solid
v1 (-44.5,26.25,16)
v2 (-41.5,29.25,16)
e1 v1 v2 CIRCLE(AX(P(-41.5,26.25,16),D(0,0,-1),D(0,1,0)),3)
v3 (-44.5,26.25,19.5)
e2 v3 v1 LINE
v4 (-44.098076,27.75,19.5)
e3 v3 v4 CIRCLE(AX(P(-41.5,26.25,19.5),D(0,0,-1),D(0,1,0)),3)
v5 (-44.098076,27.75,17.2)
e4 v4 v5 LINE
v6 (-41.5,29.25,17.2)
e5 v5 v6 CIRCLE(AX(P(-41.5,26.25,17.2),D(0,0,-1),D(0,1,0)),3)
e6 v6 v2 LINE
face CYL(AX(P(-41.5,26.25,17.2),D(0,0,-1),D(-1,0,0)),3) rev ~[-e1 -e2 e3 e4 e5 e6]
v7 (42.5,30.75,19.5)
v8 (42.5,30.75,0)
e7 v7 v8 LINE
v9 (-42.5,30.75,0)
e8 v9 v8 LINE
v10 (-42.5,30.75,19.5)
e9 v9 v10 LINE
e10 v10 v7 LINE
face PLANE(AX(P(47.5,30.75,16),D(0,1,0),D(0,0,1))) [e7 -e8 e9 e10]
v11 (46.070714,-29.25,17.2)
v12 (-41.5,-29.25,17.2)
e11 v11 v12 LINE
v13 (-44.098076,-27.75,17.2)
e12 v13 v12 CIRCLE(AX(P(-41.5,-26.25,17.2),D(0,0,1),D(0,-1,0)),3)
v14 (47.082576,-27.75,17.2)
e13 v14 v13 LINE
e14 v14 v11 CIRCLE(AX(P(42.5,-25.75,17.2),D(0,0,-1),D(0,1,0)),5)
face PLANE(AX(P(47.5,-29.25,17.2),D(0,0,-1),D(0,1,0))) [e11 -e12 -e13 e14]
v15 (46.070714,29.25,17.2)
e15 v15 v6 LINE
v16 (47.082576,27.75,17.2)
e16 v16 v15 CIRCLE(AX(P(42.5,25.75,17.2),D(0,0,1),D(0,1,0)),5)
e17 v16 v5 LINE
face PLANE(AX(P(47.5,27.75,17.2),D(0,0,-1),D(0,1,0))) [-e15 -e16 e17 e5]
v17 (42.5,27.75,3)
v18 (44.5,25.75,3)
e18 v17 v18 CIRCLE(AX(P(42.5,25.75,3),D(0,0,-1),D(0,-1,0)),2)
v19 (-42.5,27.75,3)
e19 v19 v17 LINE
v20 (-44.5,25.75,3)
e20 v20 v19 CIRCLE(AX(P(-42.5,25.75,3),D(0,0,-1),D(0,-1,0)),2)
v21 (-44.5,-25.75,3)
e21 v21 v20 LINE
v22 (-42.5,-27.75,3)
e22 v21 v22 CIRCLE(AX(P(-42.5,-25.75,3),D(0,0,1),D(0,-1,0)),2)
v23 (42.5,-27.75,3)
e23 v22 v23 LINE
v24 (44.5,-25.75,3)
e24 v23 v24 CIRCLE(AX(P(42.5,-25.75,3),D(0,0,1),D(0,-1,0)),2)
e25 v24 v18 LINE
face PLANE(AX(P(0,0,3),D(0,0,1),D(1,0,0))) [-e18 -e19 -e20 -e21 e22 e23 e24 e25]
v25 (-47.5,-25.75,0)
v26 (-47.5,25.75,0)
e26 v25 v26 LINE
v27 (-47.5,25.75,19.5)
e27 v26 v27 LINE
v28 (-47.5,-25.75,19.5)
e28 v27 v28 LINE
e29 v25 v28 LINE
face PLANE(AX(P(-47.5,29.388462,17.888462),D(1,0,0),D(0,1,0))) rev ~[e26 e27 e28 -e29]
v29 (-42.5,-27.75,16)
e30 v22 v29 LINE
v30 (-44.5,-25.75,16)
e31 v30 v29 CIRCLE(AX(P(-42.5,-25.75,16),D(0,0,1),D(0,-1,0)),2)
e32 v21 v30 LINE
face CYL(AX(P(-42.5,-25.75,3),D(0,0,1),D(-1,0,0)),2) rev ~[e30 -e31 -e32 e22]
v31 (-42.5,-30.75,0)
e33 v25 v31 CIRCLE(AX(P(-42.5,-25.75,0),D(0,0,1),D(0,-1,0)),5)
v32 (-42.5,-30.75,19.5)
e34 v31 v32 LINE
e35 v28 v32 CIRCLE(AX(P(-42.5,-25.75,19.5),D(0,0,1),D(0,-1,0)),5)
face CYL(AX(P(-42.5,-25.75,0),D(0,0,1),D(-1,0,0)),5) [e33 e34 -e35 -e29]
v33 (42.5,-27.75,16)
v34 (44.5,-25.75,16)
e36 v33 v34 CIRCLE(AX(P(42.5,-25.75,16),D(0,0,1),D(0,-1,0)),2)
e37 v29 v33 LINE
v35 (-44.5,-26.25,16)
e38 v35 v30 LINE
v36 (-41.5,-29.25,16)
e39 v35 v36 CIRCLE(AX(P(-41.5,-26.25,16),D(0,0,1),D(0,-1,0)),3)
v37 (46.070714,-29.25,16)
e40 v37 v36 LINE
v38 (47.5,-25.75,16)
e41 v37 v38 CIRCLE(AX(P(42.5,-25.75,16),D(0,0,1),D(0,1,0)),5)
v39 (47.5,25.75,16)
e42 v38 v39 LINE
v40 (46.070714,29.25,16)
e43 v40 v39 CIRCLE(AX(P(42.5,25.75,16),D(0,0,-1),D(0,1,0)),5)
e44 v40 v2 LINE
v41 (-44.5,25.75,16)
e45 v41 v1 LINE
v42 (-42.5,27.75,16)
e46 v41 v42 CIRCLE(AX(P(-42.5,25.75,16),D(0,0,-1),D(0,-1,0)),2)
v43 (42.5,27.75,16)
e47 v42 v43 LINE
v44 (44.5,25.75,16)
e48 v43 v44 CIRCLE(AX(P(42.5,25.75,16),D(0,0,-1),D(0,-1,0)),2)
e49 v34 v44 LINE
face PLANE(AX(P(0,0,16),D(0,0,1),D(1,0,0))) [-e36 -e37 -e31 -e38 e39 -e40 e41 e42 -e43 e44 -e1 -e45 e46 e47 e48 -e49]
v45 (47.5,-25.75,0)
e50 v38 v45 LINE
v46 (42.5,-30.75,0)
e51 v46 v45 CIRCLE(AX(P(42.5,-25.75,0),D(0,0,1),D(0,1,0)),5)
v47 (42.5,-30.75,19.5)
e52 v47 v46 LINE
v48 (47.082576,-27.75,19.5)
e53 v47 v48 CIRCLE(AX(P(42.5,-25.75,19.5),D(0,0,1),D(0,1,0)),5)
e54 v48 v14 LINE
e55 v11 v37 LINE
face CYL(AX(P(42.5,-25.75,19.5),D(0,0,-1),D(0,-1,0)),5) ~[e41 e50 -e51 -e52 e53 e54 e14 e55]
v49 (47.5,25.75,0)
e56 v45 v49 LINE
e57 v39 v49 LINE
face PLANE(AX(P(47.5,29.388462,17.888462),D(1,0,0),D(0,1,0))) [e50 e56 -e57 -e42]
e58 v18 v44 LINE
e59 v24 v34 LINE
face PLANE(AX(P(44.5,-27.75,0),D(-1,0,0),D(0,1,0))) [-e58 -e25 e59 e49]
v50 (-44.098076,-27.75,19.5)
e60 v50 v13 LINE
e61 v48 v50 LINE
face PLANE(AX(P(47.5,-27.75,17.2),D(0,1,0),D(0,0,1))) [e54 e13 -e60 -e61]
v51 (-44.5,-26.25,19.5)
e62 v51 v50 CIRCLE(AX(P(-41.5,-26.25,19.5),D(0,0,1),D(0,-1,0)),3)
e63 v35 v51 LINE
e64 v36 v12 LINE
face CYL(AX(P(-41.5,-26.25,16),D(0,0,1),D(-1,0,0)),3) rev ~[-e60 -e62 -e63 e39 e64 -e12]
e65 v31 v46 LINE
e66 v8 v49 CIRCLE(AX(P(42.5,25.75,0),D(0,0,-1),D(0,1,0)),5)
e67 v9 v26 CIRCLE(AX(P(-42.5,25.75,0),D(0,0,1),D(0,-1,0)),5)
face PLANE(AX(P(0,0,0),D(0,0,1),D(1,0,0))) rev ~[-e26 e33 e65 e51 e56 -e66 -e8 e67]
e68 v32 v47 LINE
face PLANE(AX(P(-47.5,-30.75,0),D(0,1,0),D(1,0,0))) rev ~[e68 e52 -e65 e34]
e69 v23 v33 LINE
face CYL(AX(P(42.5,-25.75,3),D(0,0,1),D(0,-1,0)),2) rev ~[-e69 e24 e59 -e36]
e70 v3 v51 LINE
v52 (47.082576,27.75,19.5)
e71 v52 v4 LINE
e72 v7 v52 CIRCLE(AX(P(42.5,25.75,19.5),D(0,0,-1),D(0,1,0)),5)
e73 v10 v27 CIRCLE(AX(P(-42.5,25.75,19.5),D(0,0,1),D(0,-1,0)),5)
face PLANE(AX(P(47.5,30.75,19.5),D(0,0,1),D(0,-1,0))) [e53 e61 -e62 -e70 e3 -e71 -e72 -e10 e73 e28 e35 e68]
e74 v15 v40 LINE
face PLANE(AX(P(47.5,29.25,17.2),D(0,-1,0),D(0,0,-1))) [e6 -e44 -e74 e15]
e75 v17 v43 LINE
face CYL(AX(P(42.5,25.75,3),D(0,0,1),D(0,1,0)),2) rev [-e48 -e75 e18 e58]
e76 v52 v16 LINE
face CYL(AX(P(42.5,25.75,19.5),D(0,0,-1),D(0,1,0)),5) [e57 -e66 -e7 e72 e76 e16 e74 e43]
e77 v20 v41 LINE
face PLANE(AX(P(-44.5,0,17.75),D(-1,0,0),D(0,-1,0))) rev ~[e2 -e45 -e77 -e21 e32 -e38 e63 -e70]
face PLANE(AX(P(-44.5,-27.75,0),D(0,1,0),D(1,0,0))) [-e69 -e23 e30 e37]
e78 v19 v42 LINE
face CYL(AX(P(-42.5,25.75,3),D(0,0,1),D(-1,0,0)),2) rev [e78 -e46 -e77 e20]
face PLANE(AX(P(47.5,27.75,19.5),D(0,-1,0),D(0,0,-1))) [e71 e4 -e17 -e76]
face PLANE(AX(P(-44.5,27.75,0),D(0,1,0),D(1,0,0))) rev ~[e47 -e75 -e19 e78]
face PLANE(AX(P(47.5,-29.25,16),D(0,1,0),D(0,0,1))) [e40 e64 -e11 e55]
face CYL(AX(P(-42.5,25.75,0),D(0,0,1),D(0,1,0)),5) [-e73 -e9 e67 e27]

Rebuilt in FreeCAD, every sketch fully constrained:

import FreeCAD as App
import Part
import Sketcher

V = App.Vector


def edges_at(feature, points):
    """Names of the edges that pass closest to the given points."""
    edges = feature.Shape.Edges
    near = lambda p: min(range(len(edges)), key=lambda i: edges[i].distToShape(Part.Vertex(*p))[0])
    return sorted({f"Edge{near(p) + 1}" for p in points})

doc = App.newDocument("Part")
body = doc.addObject("PartDesign::Body", "Body")

# Sketch on XY plane
sketch1 = body.newObject("Sketcher::SketchObject", "Sketch")
sketch1.AttachmentSupport = (doc.getObject("XY_Plane"), [""])
sketch1.MapMode = "FlatFace"
sketch1.addGeometry([
    Part.LineSegment(V(-44.5, 27.75, 0), V(-44.5, -27.75, 0)),
    Part.LineSegment(V(-44.5, -27.75, 0), V(44.5, -27.75, 0)),
    Part.LineSegment(V(44.5, -27.75, 0), V(44.5, 27.75, 0)),
    Part.LineSegment(V(44.5, 27.75, 0), V(-44.5, 27.75, 0)),
], False)
sketch1.addConstraint([
    Sketcher.Constraint("Coincident", 0, 2, 1, 1),
    Sketcher.Constraint("Coincident", 1, 2, 2, 1),
    Sketcher.Constraint("Coincident", 2, 2, 3, 1),
    Sketcher.Constraint("Coincident", 3, 2, 0, 1),
    Sketcher.Constraint("Vertical", 0),
    Sketcher.Constraint("Horizontal", 1),
    Sketcher.Constraint("Vertical", 2),
    Sketcher.Constraint("Horizontal", 3),
    Sketcher.Constraint("Symmetric", 0, 2, 2, 2, -1, 1),
    Sketcher.Constraint("DistanceX", 1, 1, 1, 2, 89.0),
    Sketcher.Constraint("DistanceY", 0, 2, 0, 1, 55.5),
])
pad1 = body.newObject("PartDesign::Pad", "Pad")
pad1.Profile = sketch1
pad1.Length = 3

# Sketch on XY plane
sketch2 = body.newObject("Sketcher::SketchObject", "Sketch001")
sketch2.AttachmentSupport = (doc.getObject("XY_Plane"), [""])
sketch2.MapMode = "FlatFace"
sketch2.addGeometry([
    Part.LineSegment(V(-47.5, 30.75, 0), V(-47.5, -30.75, 0)),  # 0
    Part.LineSegment(V(-47.5, -30.75, 0), V(47.5, -30.75, 0)),  # 1
    Part.LineSegment(V(47.5, -30.75, 0), V(47.5, 30.75, 0)),  # 2
    Part.LineSegment(V(47.5, 30.75, 0), V(-47.5, 30.75, 0)),  # 3
    Part.LineSegment(V(44.5, -27.75, 0), V(-44.5, -27.75, 0)),  # 4
    Part.LineSegment(V(-44.5, -27.75, 0), V(-44.5, 27.75, 0)),  # 5
    Part.LineSegment(V(-44.5, 27.75, 0), V(44.5, 27.75, 0)),  # 6
    Part.LineSegment(V(44.5, 27.75, 0), V(44.5, -27.75, 0)),  # 7
], False)
sketch2.addConstraint([
    Sketcher.Constraint("Coincident", 0, 2, 1, 1),
    Sketcher.Constraint("Coincident", 1, 2, 2, 1),
    Sketcher.Constraint("Coincident", 2, 2, 3, 1),
    Sketcher.Constraint("Coincident", 3, 2, 0, 1),
    Sketcher.Constraint("Coincident", 4, 2, 5, 1),
    Sketcher.Constraint("Coincident", 5, 2, 6, 1),
    Sketcher.Constraint("Coincident", 6, 2, 7, 1),
    Sketcher.Constraint("Coincident", 7, 2, 4, 1),
    Sketcher.Constraint("Vertical", 0),
    Sketcher.Constraint("Horizontal", 1),
    Sketcher.Constraint("Vertical", 2),
    Sketcher.Constraint("Horizontal", 3),
    Sketcher.Constraint("Horizontal", 4),
    Sketcher.Constraint("Vertical", 5),
    Sketcher.Constraint("Horizontal", 6),
    Sketcher.Constraint("Vertical", 7),
    Sketcher.Constraint("Symmetric", 0, 2, 2, 2, -1, 1),
    Sketcher.Constraint("Symmetric", 4, 2, 6, 2, -1, 1),
    Sketcher.Constraint("DistanceX", 1, 1, 1, 2, 95.0),
    Sketcher.Constraint("DistanceX", 4, 2, 4, 1, 89.0),
    Sketcher.Constraint("DistanceY", 0, 2, 0, 1, 61.5),
    Sketcher.Constraint("DistanceY", 5, 1, 5, 2, 55.5),
])
pad2 = body.newObject("PartDesign::Pad", "Pad001")
pad2.Profile = sketch2
pad2.Length = 16

# Sketch on YZ plane
sketch3 = body.newObject("Sketcher::SketchObject", "Sketch002")
sketch3.AttachmentSupport = (doc.getObject("YZ_Plane"), [""])
sketch3.MapMode = "FlatFace"
sketch3.AttachmentOffset = App.Placement(V(0, 0, 47.5), App.Rotation())
sketch3.addGeometry([
    Part.LineSegment(V(29.25, 16, 0), V(30.75, 16, 0)),  # 0
    Part.LineSegment(V(30.75, 16, 0), V(30.75, 19.5, 0)),  # 1
    Part.LineSegment(V(30.75, 19.5, 0), V(27.75, 19.5, 0)),  # 2
    Part.LineSegment(V(27.75, 19.5, 0), V(27.75, 17.2, 0)),  # 3
    Part.LineSegment(V(27.75, 17.2, 0), V(29.25, 17.2, 0)),  # 4
    Part.LineSegment(V(29.25, 17.2, 0), V(29.25, 16, 0)),  # 5
    Part.LineSegment(V(-29.25, 17.2, 0), V(-27.75, 17.2, 0)),  # 6
    Part.LineSegment(V(-27.75, 17.2, 0), V(-27.75, 19.5, 0)),  # 7
    Part.LineSegment(V(-27.75, 19.5, 0), V(-30.75, 19.5, 0)),  # 8
    Part.LineSegment(V(-30.75, 19.5, 0), V(-30.75, 16, 0)),  # 9
    Part.LineSegment(V(-30.75, 16, 0), V(-29.25, 16, 0)),  # 10
    Part.LineSegment(V(-29.25, 16, 0), V(-29.25, 17.2, 0)),  # 11
], False)
sketch3.addConstraint([
    Sketcher.Constraint("Coincident", 0, 2, 1, 1),
    Sketcher.Constraint("Coincident", 1, 2, 2, 1),
    Sketcher.Constraint("Coincident", 2, 2, 3, 1),
    Sketcher.Constraint("Coincident", 3, 2, 4, 1),
    Sketcher.Constraint("Coincident", 4, 2, 5, 1),
    Sketcher.Constraint("Coincident", 5, 2, 0, 1),
    Sketcher.Constraint("Coincident", 6, 2, 7, 1),
    Sketcher.Constraint("Coincident", 7, 2, 8, 1),
    Sketcher.Constraint("Coincident", 8, 2, 9, 1),
    Sketcher.Constraint("Coincident", 9, 2, 10, 1),
    Sketcher.Constraint("Coincident", 10, 2, 11, 1),
    Sketcher.Constraint("Coincident", 11, 2, 6, 1),
    Sketcher.Constraint("Horizontal", 0),
    Sketcher.Constraint("Vertical", 1),
    Sketcher.Constraint("Horizontal", 2),
    Sketcher.Constraint("Vertical", 3),
    Sketcher.Constraint("Horizontal", 4),
    Sketcher.Constraint("Vertical", 5),
    Sketcher.Constraint("Horizontal", 6),
    Sketcher.Constraint("Vertical", 7),
    Sketcher.Constraint("Horizontal", 8),
    Sketcher.Constraint("Vertical", 9),
    Sketcher.Constraint("Horizontal", 10),
    Sketcher.Constraint("Vertical", 11),
    Sketcher.Constraint("Symmetric", 3, 2, 6, 2, -2),
    Sketcher.Constraint("Symmetric", 1, 2, 8, 2, -2),
    Sketcher.Constraint("Symmetric", 5, 2, 10, 2, -2),
    Sketcher.Constraint("Equal", 0, 4),
    Sketcher.Constraint("DistanceX", 2, 2, 2, 1, 3.0),
    Sketcher.Constraint("DistanceY", 1, 1, 1, 2, 3.5),
    Sketcher.Constraint("DistanceY", 3, 2, 3, 1, 2.3),
    Sketcher.Constraint("DistanceY", -1, 1, 0, 2, 16.0),
    Sketcher.Constraint("DistanceX", 6, 2, 4, 2, 57.0),
])
pad3 = body.newObject("PartDesign::Pad", "Pad002")
pad3.Profile = sketch3
pad3.Length = 95
pad3.Reversed = True

# Sketch on YZ plane
sketch4 = body.newObject("Sketcher::SketchObject", "Sketch003")
sketch4.AttachmentSupport = (doc.getObject("YZ_Plane"), [""])
sketch4.MapMode = "FlatFace"
sketch4.AttachmentOffset = App.Placement(V(0, 0, -47.5), App.Rotation())
sketch4.addGeometry([
    Part.LineSegment(V(30.75, 19.5, 0), V(30.75, 16, 0)),
    Part.LineSegment(V(30.75, 16, 0), V(-30.75, 16, 0)),
    Part.LineSegment(V(-30.75, 16, 0), V(-30.75, 19.5, 0)),
    Part.LineSegment(V(-30.75, 19.5, 0), V(30.75, 19.5, 0)),
], False)
sketch4.addConstraint([
    Sketcher.Constraint("Coincident", 0, 2, 1, 1),
    Sketcher.Constraint("Coincident", 1, 2, 2, 1),
    Sketcher.Constraint("Coincident", 2, 2, 3, 1),
    Sketcher.Constraint("Coincident", 3, 2, 0, 1),
    Sketcher.Constraint("Vertical", 0),
    Sketcher.Constraint("Horizontal", 1),
    Sketcher.Constraint("Vertical", 2),
    Sketcher.Constraint("Horizontal", 3),
    Sketcher.Constraint("DistanceX", 1, 2, 1, 1, 61.5),
    Sketcher.Constraint("DistanceY", 0, 2, 0, 1, 3.5),
    Sketcher.Constraint("DistanceY", -1, 1, 0, 2, 16.0),
    Sketcher.Constraint("DistanceX", -1, 1, 0, 2, 30.75),
])
pad4 = body.newObject("PartDesign::Pad", "Pad003")
pad4.Profile = sketch4
pad4.Length = 3
doc.recompute()

fillet = body.newObject("PartDesign::Fillet", "Fillet")
fillet.Base = (pad4, edges_at(pad4, [
    (47.5, -30.75, 9.75),
    (-47.5, -30.75, 9.75),
    (47.5, 30.75, 9.75),
    (-47.5, 30.75, 9.75),
]))
fillet.Radius = 5
doc.recompute()

fillet2 = body.newObject("PartDesign::Fillet", "Fillet001")
fillet2.Base = (fillet, edges_at(fillet, [
    (-44.5, 27.75, 9.5),
    (-44.5, -27.75, 9.5),
    (44.5, -27.75, 9.5),
    (44.5, 27.75, 9.5),
]))
fillet2.Radius = 2
doc.recompute()

fillet3 = body.newObject("PartDesign::Fillet", "Fillet002")
fillet3.Base = (fillet2, edges_at(fillet2, [(-44.5, -29.25, 16.6), (-44.5, 29.25, 16.6)]))
fillet3.Radius = 3

doc.recompute()
